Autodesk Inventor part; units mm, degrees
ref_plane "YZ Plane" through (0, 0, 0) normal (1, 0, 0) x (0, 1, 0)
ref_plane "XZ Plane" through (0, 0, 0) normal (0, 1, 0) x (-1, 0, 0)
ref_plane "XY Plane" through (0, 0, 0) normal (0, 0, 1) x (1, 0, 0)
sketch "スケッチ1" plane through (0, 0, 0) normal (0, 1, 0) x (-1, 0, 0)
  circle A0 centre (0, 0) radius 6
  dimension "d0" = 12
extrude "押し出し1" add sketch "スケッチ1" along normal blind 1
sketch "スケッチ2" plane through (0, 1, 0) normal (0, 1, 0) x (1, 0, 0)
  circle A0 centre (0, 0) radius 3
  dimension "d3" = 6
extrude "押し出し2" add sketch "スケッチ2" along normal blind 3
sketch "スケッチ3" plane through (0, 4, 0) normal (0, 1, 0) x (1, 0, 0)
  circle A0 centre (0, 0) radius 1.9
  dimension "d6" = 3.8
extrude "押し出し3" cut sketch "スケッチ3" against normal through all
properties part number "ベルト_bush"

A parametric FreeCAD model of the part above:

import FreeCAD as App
import Part
import Sketcher

V = App.Vector
Q = App.Units.Quantity

doc = App.newDocument("Part")
body = doc.addObject("PartDesign::Body", "Body")

sketch1 = body.newObject("Sketcher::SketchObject", "Sketch")
sketch1.AttachmentSupport = (doc.getObject("XZ_Plane"), [""])
sketch1.MapMode = "FlatFace"
sketch1.addGeometry(Part.Circle(V(0, 0, 0), V(0, 0, 1), 6), False)
sketch1.addConstraint([
    Sketcher.Constraint("Coincident", 0, 3, -1, 1),
    Sketcher.Constraint("Diameter", 0, Q("12 mm")),
])
pad1 = body.newObject("PartDesign::Pad", "Pad")
pad1.Profile = sketch1
pad1.Length = 1
pad1.Reversed = True

sketch2 = body.newObject("Sketcher::SketchObject", "Sketch001")
sketch2.AttachmentSupport = (doc.getObject("XZ_Plane"), [""])
sketch2.MapMode = "FlatFace"
sketch2.AttachmentOffset = App.Placement(V(0, 0, -1), App.Rotation())
sketch2.addGeometry(Part.Circle(V(0, 0, 0), V(0, 0, 1), 3), False)
sketch2.addConstraint([
    Sketcher.Constraint("Coincident", 0, 3, -1, 1),
    Sketcher.Constraint("Diameter", 0, Q("6 mm")),
])
pad2 = body.newObject("PartDesign::Pad", "Pad001")
pad2.Profile = sketch2
pad2.Length = 3
pad2.Reversed = True

sketch3 = body.newObject("Sketcher::SketchObject", "Sketch002")
sketch3.AttachmentSupport = (doc.getObject("XZ_Plane"), [""])
sketch3.MapMode = "FlatFace"
sketch3.AttachmentOffset = App.Placement(V(0, 0, -4), App.Rotation())
sketch3.addGeometry(Part.Circle(V(0, 0, 0), V(0, 0, 1), 1.9), False)
sketch3.addConstraint([
    Sketcher.Constraint("Coincident", 0, 3, -1, 1),
    Sketcher.Constraint("Diameter", 0, Q("3.8 mm")),
])
pocket1 = body.newObject("PartDesign::Pocket", "Pocket")
pocket1.Profile = sketch3
pocket1.Type = "ThroughAll"
pocket1.Reversed = True

doc.recompute()
